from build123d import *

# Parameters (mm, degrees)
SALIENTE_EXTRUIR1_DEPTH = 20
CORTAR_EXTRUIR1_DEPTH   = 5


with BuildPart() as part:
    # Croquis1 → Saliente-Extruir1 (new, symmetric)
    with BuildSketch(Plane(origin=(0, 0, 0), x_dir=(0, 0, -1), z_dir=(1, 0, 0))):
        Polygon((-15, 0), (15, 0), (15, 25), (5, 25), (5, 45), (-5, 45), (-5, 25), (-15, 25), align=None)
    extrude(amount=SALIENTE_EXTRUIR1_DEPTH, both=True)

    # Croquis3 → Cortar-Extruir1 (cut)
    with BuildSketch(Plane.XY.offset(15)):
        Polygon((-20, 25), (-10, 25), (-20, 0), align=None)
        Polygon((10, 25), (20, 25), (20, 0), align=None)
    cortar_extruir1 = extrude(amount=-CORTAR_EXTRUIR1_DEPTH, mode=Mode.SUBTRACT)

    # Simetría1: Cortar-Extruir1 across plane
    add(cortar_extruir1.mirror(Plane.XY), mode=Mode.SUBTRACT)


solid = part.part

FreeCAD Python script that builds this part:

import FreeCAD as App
import Part
import Sketcher
from FreeCAD import Vector
Q = App.Units.Quantity

doc = App.newDocument("Part")
params = doc.addObject("Spreadsheet::Sheet", "Params")
for row, (alias, value) in enumerate([
    ("sketch1_width", "25 mm"),
    ("sketch1_width2", "20 mm"),
    ("sketch1_height", "30 mm"),
    ("pad1_length", "40 mm"),
    ("sketch2_width", "10 mm"),
    ("sketch2_height", "25 mm"),
    ("pocket1_length", "5 mm"),
], start=1):
    params.set(f"A{row}", alias)
    params.set(f"B{row}", "=" + value)
    params.setAlias(f"B{row}", alias)

body = doc.addObject("PartDesign::Body", "Body")

# Sketch on YZ plane
sketch1 = doc.addObject("Sketcher::SketchObject", "Sketch")
body.addObject(sketch1)
sketch1.AttachmentSupport = (doc.YZ_Plane, [""])
sketch1.MapMode = "FlatFace"
sketch1.addGeometry([
    Part.LineSegment(Vector(0, 15, 0), Vector(0, -15, 0)),  # 0
    Part.LineSegment(Vector(0, -15, 0), Vector(25, -15, 0)),  # 1
    Part.LineSegment(Vector(25, -15, 0), Vector(25, -5, 0)),  # 2
    Part.LineSegment(Vector(25, -5, 0), Vector(45, -5, 0)),  # 3
    Part.LineSegment(Vector(45, -5, 0), Vector(45, 5, 0)),  # 4
    Part.LineSegment(Vector(45, 5, 0), Vector(25, 5, 0)),  # 5
    Part.LineSegment(Vector(25, 5, 0), Vector(25, 15, 0)),  # 6
    Part.LineSegment(Vector(25, 15, 0), Vector(0, 15, 0)),  # 7
], False)
sketch1.addConstraint([
    Sketcher.Constraint("Coincident", 0, 2, 1, 1),
    Sketcher.Constraint("Coincident", 1, 2, 2, 1),
    Sketcher.Constraint("Coincident", 2, 2, 3, 1),
    Sketcher.Constraint("Coincident", 3, 2, 4, 1),
    Sketcher.Constraint("Coincident", 4, 2, 5, 1),
    Sketcher.Constraint("Coincident", 5, 2, 6, 1),
    Sketcher.Constraint("Coincident", 6, 2, 7, 1),
    Sketcher.Constraint("Coincident", 7, 2, 0, 1),
    Sketcher.Constraint("Vertical", 0),
    Sketcher.Constraint("Horizontal", 1),
    Sketcher.Constraint("Vertical", 2),
    Sketcher.Constraint("Horizontal", 3),
    Sketcher.Constraint("Vertical", 4),
    Sketcher.Constraint("Horizontal", 5),
    Sketcher.Constraint("Vertical", 6),
    Sketcher.Constraint("Horizontal", 7),
    Sketcher.Constraint("Symmetric", 0, 2, 7, 2, -1, 1),
    Sketcher.Constraint("Symmetric", 2, 2, 5, 2, -1),
    Sketcher.Constraint("Equal", 2, 4),
    Sketcher.Constraint("DistanceX", 1, 1, 1, 2, Q("25 mm")),
    Sketcher.Constraint("DistanceX", 3, 1, 3, 2, Q("20 mm")),
    Sketcher.Constraint("DistanceY", 0, 2, 0, 1, Q("30 mm")),
])
sketch1.setExpression("Constraints[19]", "Params.sketch1_width")
sketch1.setExpression("Constraints[20]", "Params.sketch1_width2")
sketch1.setExpression("Constraints[21]", "Params.sketch1_height")
pad1 = doc.addObject("PartDesign::Pad", "Pad")
body.addObject(pad1)
pad1.Profile = sketch1
pad1.setExpression("Length", "Params.pad1_length")
pad1.Midplane = True

# Sketch on XY plane
sketch2 = doc.addObject("Sketcher::SketchObject", "Sketch001")
body.addObject(sketch2)
sketch2.AttachmentSupport = (doc.XY_Plane, [""])
sketch2.MapMode = "FlatFace"
sketch2.AttachmentOffset = App.Placement(Vector(0, 0, 15), App.Rotation())
sketch2.addGeometry([
    Part.LineSegment(Vector(-10, 25, 0), Vector(-20, 25, 0)),  # 0
    Part.LineSegment(Vector(-20, 25, 0), Vector(-20, 0, 0)),  # 1
    Part.LineSegment(Vector(-20, 0, 0), Vector(-10, 25, 0)),  # 2
    Part.LineSegment(Vector(20, 25, 0), Vector(10, 25, 0)),  # 3
    Part.LineSegment(Vector(10, 25, 0), Vector(20, 0, 0)),  # 4
    Part.LineSegment(Vector(20, 0, 0), Vector(20, 25, 0)),  # 5
], False)
sketch2.addConstraint([
    Sketcher.Constraint("Coincident", 0, 2, 1, 1),
    Sketcher.Constraint("Coincident", 1, 2, 2, 1),
    Sketcher.Constraint("Coincident", 2, 2, 0, 1),
    Sketcher.Constraint("Coincident", 3, 2, 4, 1),
    Sketcher.Constraint("Coincident", 4, 2, 5, 1),
    Sketcher.Constraint("Coincident", 5, 2, 3, 1),
    Sketcher.Constraint("Horizontal", 0),
    Sketcher.Constraint("Vertical", 1),
    Sketcher.Constraint("Horizontal", 3),
    Sketcher.Constraint("Vertical", 5),
    Sketcher.Constraint("Symmetric", 1, 2, 4, 2, -1, 1),
    Sketcher.Constraint("Symmetric", 2, 2, 3, 2, -2),
    Sketcher.Constraint("PointOnObject", 1, 2, -1),
    Sketcher.Constraint("DistanceX", 0, 2, 0, 1, Q("10 mm")),
    Sketcher.Constraint("DistanceY", 1, 2, 1, 1, Q("25 mm")),
    Sketcher.Constraint("DistanceX", 0, 2, -1, 1, Q("20 mm")),
])
sketch2.setExpression("Constraints[13]", "Params.sketch2_width")
sketch2.setExpression("Constraints[14]", "Params.sketch2_height")
pocket1 = doc.addObject("PartDesign::Pocket", "Pocket")
body.addObject(pocket1)
pocket1.Profile = sketch2
pocket1.setExpression("Length", "Params.pocket1_length")
doc.recompute()

mirrored = doc.addObject("PartDesign::Mirrored", "Mirrored")
body.addObject(mirrored)
mirrored.Originals = [pocket1]
mirrored.MirrorPlane = (doc.XY_Plane, [""])
body.Tip = mirrored

doc.recompute()
